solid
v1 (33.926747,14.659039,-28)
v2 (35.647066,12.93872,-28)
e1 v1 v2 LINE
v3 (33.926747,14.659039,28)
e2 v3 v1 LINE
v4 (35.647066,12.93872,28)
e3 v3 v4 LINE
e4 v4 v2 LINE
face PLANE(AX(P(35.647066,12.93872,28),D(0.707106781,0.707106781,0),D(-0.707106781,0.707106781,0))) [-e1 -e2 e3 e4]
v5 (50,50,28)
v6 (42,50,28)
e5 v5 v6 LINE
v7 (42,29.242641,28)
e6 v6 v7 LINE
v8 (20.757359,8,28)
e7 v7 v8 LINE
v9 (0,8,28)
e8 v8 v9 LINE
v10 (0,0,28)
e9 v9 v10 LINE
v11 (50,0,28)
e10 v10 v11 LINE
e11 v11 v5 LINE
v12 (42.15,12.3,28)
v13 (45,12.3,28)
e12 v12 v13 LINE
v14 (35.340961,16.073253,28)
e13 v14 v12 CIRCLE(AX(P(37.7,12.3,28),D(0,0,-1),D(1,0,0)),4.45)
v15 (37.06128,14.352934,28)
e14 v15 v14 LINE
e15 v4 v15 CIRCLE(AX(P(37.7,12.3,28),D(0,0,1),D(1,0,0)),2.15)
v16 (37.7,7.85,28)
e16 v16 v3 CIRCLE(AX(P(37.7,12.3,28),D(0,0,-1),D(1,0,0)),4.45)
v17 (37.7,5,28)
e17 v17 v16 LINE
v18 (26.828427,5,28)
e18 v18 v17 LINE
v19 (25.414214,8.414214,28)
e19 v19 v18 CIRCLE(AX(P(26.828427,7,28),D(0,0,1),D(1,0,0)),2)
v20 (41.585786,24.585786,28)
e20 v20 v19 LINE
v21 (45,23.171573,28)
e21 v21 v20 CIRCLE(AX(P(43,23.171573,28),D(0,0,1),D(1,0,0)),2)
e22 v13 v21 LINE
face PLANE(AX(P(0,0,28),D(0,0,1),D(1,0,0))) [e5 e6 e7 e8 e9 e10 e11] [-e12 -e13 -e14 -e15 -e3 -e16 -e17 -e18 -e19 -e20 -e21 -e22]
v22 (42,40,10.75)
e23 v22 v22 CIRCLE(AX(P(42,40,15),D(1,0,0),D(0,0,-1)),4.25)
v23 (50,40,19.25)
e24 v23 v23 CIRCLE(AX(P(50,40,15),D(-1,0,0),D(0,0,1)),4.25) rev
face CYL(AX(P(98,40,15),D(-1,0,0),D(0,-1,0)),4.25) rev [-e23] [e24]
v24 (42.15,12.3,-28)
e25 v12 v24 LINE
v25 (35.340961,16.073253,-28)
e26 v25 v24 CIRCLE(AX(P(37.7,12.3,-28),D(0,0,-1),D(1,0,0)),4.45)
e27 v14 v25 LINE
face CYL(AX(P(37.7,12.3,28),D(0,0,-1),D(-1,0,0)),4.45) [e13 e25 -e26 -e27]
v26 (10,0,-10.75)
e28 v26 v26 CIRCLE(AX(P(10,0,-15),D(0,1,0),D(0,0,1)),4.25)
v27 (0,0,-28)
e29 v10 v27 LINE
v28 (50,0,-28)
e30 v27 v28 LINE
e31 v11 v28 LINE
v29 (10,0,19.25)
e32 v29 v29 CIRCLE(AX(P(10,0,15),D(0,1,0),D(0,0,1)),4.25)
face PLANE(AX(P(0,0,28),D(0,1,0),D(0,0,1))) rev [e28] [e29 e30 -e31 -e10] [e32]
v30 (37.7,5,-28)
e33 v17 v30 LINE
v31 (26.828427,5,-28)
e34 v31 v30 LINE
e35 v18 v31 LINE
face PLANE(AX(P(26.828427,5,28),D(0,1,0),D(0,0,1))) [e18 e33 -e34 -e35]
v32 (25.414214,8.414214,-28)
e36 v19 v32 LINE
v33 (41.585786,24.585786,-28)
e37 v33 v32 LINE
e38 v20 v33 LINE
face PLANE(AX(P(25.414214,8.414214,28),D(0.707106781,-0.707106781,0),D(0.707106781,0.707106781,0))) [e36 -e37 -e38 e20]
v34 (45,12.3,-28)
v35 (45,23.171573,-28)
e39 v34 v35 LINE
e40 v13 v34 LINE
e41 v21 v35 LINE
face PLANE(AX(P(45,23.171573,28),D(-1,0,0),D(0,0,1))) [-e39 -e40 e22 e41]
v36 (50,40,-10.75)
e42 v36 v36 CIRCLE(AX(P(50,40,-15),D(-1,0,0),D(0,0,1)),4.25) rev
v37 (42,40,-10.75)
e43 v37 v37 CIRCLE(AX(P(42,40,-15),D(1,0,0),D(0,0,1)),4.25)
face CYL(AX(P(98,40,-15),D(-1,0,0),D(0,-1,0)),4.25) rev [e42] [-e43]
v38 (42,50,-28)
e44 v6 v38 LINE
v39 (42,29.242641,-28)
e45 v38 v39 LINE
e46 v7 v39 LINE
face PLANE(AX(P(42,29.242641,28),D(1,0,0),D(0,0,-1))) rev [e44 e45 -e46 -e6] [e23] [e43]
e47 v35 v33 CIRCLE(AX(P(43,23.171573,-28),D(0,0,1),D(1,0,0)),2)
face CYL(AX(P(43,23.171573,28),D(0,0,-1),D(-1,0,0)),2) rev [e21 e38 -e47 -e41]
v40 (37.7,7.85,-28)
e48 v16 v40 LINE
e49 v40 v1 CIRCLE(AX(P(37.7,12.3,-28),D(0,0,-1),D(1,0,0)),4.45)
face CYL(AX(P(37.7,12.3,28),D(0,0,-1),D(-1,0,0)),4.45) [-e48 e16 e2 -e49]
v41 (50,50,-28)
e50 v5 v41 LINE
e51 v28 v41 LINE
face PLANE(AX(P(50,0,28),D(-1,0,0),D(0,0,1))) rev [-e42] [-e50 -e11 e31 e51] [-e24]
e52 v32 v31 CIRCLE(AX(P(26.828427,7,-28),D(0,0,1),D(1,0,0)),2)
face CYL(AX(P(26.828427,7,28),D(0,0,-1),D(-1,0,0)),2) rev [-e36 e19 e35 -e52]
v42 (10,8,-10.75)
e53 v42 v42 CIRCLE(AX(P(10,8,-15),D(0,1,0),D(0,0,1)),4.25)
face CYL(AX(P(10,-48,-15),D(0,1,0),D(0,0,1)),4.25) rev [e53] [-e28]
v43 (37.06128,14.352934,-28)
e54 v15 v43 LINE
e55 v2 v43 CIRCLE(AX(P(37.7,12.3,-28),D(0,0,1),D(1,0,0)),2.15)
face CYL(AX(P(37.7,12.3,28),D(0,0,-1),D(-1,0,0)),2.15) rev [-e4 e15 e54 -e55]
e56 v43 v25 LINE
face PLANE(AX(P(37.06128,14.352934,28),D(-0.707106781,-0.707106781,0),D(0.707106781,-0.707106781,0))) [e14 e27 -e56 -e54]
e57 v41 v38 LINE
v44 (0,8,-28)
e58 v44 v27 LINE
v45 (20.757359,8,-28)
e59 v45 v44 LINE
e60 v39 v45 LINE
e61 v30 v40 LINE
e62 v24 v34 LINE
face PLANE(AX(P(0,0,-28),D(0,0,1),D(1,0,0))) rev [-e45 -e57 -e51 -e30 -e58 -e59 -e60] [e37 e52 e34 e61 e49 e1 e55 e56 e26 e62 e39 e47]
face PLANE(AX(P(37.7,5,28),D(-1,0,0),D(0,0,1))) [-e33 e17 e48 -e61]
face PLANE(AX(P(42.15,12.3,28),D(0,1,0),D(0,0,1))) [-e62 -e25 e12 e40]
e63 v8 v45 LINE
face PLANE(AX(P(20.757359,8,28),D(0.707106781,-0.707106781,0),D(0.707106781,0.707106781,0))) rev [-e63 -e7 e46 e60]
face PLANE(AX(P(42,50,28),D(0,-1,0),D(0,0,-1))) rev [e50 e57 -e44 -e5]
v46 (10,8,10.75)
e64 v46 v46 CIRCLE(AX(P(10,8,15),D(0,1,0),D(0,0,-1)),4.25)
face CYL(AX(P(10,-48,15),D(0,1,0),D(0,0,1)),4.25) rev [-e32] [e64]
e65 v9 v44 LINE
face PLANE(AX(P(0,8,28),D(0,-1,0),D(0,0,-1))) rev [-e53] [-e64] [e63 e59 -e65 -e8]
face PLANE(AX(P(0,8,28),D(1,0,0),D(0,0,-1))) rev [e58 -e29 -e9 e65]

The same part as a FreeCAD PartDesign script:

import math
import FreeCAD as App
import Part
import Sketcher
Q = App.Units.Quantity

doc = App.newDocument("Part")
body = doc.addObject("PartDesign::Body", "Body")

sketch1 = doc.addObject("Sketcher::SketchObject", "Sketch")
body.addObject(sketch1)
sketch1.AttachmentSupport = (doc.XY_Plane, [""])
sketch1.MapMode = "FlatFace"
sketch1.addGeometry([
    Part.LineSegment(App.Vector(0, 0, 0), App.Vector(50, 0, 0)),
    Part.LineSegment(App.Vector(50, 0, 0), App.Vector(50, 50, 0)),
    Part.LineSegment(App.Vector(50, 50, 0), App.Vector(42, 50, 0)),
    Part.LineSegment(App.Vector(42, 50, 0), App.Vector(42, 29.2, 0)),
    Part.LineSegment(App.Vector(42, 29.2, 0), App.Vector(20.8, 8, 0)),
    Part.LineSegment(App.Vector(20.8, 8, 0), App.Vector(0, 8, 0)),
    Part.LineSegment(App.Vector(0, 8, 0), App.Vector(0, 0, 0)),
    Part.LineSegment(App.Vector(35.3, 16.1, 0), App.Vector(37.1, 14.4, 0)),
    Part.ArcOfCircle(Part.Circle(App.Vector(37.7, 12.3, 0), App.Vector(0, 0, 1), 2.1), math.radians(163), math.radians(467)),
    Part.LineSegment(App.Vector(35.6, 12.9, 0), App.Vector(33.9, 14.7, 0)),
    Part.ArcOfCircle(Part.Circle(App.Vector(37.7, 12.3, 0), App.Vector(0, 0, 1), 4.5), math.radians(148), math.radians(270)),
    Part.LineSegment(App.Vector(37.7, 7.8, 0), App.Vector(37.7, 5, 0)),
    Part.LineSegment(App.Vector(37.7, 5, 0), App.Vector(26.8, 5, 0)),
    Part.ArcOfCircle(Part.Circle(App.Vector(26.8, 7, 0), App.Vector(0, 0, 1), 2), math.radians(135), math.radians(270)),
    Part.LineSegment(App.Vector(25.4, 8.4, 0), App.Vector(41.6, 24.6, 0)),
    Part.ArcOfCircle(Part.Circle(App.Vector(43, 23.2, 0), App.Vector(0, 0, 1), 2), math.radians(0), math.radians(135)),
    Part.LineSegment(App.Vector(45, 23.2, 0), App.Vector(45, 12.3, 0)),
    Part.LineSegment(App.Vector(45, 12.3, 0), App.Vector(42.1, 12.3, 0)),
    Part.ArcOfCircle(Part.Circle(App.Vector(37.7, 12.3, 0), App.Vector(0, 0, 1), 4.5), math.radians(0), math.radians(122)),
], False)
sketch1.addConstraint([
    Sketcher.Constraint("Coincident", 0, 2, 1, 1),
    Sketcher.Constraint("Coincident", 1, 2, 2, 1),
    Sketcher.Constraint("Coincident", 2, 2, 3, 1),
    Sketcher.Constraint("Coincident", 3, 2, 4, 1),
    Sketcher.Constraint("Coincident", 4, 2, 5, 1),
    Sketcher.Constraint("Coincident", 5, 2, 6, 1),
    Sketcher.Constraint("Coincident", 6, 2, 0, 1),
    Sketcher.Constraint("Coincident", 7, 2, 8, 2),
    Sketcher.Constraint("Coincident", 8, 1, 9, 1),
    Sketcher.Constraint("Coincident", 9, 2, 10, 1),
    Sketcher.Constraint("Coincident", 10, 2, 11, 1),
    Sketcher.Constraint("Coincident", 11, 2, 12, 1),
    Sketcher.Constraint("Tangent", 12, 2, 13, 2),
    Sketcher.Constraint("Tangent", 13, 1, 14, 1),
    Sketcher.Constraint("Tangent", 14, 2, 15, 2),
    Sketcher.Constraint("Tangent", 15, 1, 16, 1),
    Sketcher.Constraint("Coincident", 16, 2, 17, 1),
    Sketcher.Constraint("Coincident", 17, 2, 18, 1),
    Sketcher.Constraint("Coincident", 18, 2, 7, 1),
    Sketcher.Constraint("Horizontal", 0),
    Sketcher.Constraint("Vertical", 1),
    Sketcher.Constraint("Horizontal", 2),
    Sketcher.Constraint("Vertical", 3),
    Sketcher.Constraint("Horizontal", 5),
    Sketcher.Constraint("Vertical", 6),
    Sketcher.Constraint("Vertical", 11),
    Sketcher.Constraint("Horizontal", 12),
    Sketcher.Constraint("Vertical", 16),
    Sketcher.Constraint("Horizontal", 17),
    Sketcher.Constraint("Coincident", 6, 2, -1, 1),
    Sketcher.Constraint("Coincident", 10, 3, 8, 3),
    Sketcher.Constraint("Coincident", 18, 3, 8, 3),
    Sketcher.Constraint("Equal", 13, 15),
    Sketcher.Constraint("Equal", 10, 18),
    Sketcher.Constraint("Perpendicular", 4, 7),
    Sketcher.Constraint("Parallel", 7, 9),
    Sketcher.Constraint("Perpendicular", 9, 14),
    Sketcher.Constraint("Horizontal", 18, 3, 16, 2),
    Sketcher.Constraint("Vertical", 18, 3, 10, 2),
    Sketcher.Constraint("Equal", 0, 1),
    Sketcher.Constraint("Equal", 5, 3),
    Sketcher.Constraint("Equal", 2, 6),
    Sketcher.Constraint("Equal", 17, 11),
    Sketcher.Constraint("Equal", 7, 9),
    Sketcher.Constraint("Radius", 13, Q("2 mm")),
    Sketcher.Constraint("DistanceX", 0, 1, 0, 2, Q("50 mm")),
    Sketcher.Constraint("DistanceX", 2, 2, 2, 1, Q("8 mm")),
    Sketcher.Constraint("Radius", 8, Q("2.15 mm")),
    Sketcher.Constraint("Radius", 10, Q("4.45 mm")),
    Sketcher.Constraint("DistanceY", -1, 1, 13, 3, Q("7 mm")),
    Sketcher.Constraint("DistanceX", -1, 1, 15, 3, Q("43 mm")),
    Sketcher.Constraint("DistanceX", 17, 2, 17, 1, Q("2.85 mm")),
    Sketcher.Constraint("Distance", 7, Q("2.432898 mm")),
    Sketcher.Constraint("DistanceX", 5, 2, 5, 1, Q("20.757359 mm")),
    Sketcher.Constraint("DistanceX", 12, 2, 12, 1, Q("10.871573 mm")),
])
pad1 = doc.addObject("PartDesign::Pad", "Pad")
body.addObject(pad1)
pad1.Profile = sketch1
pad1.Length = 56
pad1.Midplane = True

sketch2 = doc.addObject("Sketcher::SketchObject", "Sketch001")
body.addObject(sketch2)
sketch2.AttachmentSupport = (doc.XZ_Plane, [""])
sketch2.MapMode = "FlatFace"
sketch2.AttachmentOffset = App.Placement(App.Vector(0, 0, -8), App.Rotation())
sketch2.addGeometry([
    Part.Circle(App.Vector(10, -15, 0), App.Vector(0, 0, 1), 4.2),
    Part.Circle(App.Vector(10, 15, 0), App.Vector(0, 0, 1), 4.2),
], False)
sketch2.addConstraint([
    Sketcher.Constraint("Equal", 0, 1),
    Sketcher.Constraint("Symmetric", 0, 3, 1, 3, -1),
    Sketcher.Constraint("Diameter", 0, Q("8.5 mm")),
    Sketcher.Constraint("DistanceX", -1, 1, 0, 3, Q("10 mm")),
    Sketcher.Constraint("DistanceY", 0, 3, -1, 1, Q("15 mm")),
])
pocket1 = doc.addObject("PartDesign::Pocket", "Pocket")
body.addObject(pocket1)
pocket1.Profile = sketch2
pocket1.Length = 56
pocket1.Reversed = True
doc.recompute()

datumplane = doc.addObject("PartDesign::Plane", "DatumPlane")
body.addObject(datumplane)
datumplane.Placement = App.Placement(App.Vector(25, 25, 0), App.Rotation(App.Vector(-0.707106781, 0.707106781, 0), App.Vector(0, 0, -1), App.Vector(-0.707106781, -0.707106781, 0), "ZXY"))
mirrored = doc.addObject("PartDesign::Mirrored", "Mirrored")
body.addObject(mirrored)
mirrored.Originals = [pocket1]
mirrored.MirrorPlane = (datumplane, [""])
body.Tip = mirrored

doc.recompute()
